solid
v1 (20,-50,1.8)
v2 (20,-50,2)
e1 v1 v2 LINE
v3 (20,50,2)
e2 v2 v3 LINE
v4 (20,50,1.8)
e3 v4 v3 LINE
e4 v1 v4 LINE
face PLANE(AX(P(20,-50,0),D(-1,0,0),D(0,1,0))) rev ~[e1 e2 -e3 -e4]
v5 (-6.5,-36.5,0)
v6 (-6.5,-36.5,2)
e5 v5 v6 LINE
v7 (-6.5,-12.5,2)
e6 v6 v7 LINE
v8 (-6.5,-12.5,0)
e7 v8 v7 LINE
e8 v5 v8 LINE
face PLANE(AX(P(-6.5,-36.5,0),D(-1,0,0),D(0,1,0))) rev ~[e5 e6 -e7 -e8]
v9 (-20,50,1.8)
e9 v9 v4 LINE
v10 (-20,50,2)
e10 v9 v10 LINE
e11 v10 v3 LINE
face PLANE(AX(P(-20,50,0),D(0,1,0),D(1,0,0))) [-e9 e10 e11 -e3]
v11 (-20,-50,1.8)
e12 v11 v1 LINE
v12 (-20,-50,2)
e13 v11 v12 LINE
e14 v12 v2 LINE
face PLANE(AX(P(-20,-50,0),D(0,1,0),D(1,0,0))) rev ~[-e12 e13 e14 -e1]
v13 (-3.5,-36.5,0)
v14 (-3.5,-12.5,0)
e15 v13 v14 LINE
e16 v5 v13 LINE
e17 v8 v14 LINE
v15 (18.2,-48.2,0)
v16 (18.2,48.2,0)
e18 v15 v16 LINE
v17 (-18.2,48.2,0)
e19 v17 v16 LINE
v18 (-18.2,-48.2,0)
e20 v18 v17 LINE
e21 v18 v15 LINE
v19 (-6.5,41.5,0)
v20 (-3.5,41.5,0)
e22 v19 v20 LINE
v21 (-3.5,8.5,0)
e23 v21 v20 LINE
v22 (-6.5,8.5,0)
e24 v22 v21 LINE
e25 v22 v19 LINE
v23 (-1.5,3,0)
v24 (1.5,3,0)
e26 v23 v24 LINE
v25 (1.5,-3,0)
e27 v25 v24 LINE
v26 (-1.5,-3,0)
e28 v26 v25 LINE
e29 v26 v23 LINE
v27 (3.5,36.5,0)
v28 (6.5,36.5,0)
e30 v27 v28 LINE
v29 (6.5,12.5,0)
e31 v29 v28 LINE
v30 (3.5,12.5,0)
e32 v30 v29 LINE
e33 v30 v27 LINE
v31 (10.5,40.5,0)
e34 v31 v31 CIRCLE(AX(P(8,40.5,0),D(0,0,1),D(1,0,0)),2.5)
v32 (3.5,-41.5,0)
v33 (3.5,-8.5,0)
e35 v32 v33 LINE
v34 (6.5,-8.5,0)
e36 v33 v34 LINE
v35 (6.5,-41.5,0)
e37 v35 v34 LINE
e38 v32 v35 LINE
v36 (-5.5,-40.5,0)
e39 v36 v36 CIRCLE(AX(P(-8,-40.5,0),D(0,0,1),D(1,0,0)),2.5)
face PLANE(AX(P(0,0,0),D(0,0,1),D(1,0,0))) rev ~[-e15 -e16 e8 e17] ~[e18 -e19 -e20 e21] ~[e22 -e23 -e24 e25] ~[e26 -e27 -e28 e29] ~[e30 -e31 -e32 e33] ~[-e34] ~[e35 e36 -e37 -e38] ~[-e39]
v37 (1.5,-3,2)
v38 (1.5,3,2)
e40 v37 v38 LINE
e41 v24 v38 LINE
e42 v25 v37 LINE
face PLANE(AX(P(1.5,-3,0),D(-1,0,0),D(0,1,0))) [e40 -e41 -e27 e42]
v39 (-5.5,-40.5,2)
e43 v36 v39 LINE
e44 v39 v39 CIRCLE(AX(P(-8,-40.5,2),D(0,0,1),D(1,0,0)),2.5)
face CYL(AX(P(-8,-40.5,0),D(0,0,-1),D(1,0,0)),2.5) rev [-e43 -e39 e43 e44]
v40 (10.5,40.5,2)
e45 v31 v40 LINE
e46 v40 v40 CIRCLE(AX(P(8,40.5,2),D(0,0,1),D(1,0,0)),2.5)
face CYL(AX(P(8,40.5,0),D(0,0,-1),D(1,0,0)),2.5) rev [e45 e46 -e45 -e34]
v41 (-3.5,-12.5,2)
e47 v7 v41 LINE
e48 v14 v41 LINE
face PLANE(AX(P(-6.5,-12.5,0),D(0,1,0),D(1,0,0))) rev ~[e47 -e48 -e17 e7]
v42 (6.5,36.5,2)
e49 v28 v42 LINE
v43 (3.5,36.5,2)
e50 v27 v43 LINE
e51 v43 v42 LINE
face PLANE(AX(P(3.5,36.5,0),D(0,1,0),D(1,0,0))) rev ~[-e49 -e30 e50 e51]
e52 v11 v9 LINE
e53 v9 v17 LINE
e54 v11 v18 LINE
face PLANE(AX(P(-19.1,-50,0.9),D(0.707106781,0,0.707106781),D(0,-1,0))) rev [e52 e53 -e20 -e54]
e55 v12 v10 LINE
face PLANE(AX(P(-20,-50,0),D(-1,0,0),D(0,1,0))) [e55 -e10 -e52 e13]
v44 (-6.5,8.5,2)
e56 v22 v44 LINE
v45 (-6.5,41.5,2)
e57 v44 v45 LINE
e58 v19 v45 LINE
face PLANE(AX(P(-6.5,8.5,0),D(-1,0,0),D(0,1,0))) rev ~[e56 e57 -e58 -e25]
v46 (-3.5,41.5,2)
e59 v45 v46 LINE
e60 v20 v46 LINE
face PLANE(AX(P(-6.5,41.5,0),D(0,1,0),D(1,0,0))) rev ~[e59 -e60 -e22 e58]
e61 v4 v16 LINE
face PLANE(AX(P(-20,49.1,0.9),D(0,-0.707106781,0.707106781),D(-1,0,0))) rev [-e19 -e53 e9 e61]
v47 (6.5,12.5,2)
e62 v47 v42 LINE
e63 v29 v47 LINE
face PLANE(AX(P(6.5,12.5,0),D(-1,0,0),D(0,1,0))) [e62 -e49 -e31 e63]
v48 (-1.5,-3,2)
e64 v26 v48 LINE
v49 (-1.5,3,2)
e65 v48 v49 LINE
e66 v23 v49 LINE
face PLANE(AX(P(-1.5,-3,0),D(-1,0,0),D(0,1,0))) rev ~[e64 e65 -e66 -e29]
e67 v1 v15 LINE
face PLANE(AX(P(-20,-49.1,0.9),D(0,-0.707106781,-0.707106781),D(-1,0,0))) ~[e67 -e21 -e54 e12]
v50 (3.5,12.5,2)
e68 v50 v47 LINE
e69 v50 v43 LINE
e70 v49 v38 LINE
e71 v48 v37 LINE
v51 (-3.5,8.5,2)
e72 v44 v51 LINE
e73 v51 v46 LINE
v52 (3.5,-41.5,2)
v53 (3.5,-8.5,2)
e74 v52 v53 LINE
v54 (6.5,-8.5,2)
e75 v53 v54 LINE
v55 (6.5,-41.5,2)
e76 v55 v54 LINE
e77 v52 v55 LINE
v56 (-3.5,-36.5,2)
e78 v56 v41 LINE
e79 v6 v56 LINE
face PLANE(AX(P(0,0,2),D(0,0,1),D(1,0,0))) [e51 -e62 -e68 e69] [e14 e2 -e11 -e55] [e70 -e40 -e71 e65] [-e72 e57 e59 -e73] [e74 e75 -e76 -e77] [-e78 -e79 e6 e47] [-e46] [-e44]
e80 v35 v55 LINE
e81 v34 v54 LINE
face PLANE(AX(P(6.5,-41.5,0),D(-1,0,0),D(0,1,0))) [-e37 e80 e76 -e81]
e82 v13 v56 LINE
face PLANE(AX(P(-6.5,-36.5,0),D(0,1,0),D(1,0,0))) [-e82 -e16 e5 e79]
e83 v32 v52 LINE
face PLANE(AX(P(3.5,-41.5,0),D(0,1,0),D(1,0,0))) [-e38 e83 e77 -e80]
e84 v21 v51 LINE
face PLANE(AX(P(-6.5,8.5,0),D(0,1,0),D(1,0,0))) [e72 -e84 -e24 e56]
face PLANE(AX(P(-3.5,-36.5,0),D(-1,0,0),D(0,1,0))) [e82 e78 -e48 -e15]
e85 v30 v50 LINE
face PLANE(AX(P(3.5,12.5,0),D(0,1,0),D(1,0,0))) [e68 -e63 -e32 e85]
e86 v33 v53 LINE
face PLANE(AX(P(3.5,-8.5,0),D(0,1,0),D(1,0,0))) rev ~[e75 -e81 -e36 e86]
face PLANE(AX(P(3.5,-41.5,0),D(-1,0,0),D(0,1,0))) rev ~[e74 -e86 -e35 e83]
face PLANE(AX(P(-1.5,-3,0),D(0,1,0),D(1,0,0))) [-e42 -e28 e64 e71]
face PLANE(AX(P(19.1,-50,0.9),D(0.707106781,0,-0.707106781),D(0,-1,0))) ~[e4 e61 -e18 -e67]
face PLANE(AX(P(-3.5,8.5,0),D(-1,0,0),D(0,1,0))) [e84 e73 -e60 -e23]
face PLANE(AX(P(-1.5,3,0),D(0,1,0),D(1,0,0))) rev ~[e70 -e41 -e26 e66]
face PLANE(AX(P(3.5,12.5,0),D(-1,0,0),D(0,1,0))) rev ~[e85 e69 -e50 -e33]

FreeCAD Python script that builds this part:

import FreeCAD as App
import Part
import Sketcher


def edges_at(feature, points):
    """Names of the edges that pass closest to the given points."""
    edges = feature.Shape.Edges
    near = lambda p: min(range(len(edges)), key=lambda i: edges[i].distToShape(Part.Vertex(*p))[0])
    return sorted({f"Edge{near(p) + 1}" for p in points})

doc = App.newDocument("Part")
body = doc.addObject("PartDesign::Body", "Body")

# Sketch on XY plane
sketch1 = body.newObject("Sketcher::SketchObject", "Sketch")
sketch1.AttachmentSupport = (doc.getObject("XY_Plane"), [""])
sketch1.MapMode = "FlatFace"
sketch1.addGeometry([
    Part.LineSegment(App.Vector(-20, 50, 0), App.Vector(-20, -50, 0)),  # 0
    Part.LineSegment(App.Vector(-20, -50, 0), App.Vector(20, -50, 0)),  # 1
    Part.LineSegment(App.Vector(20, -50, 0), App.Vector(20, 50, 0)),  # 2
    Part.LineSegment(App.Vector(20, 50, 0), App.Vector(-20, 50, 0)),  # 3
    Part.Circle(App.Vector(-8, -40.5, 0), App.Vector(0, 0, 1), 2.5),  # 4
    Part.LineSegment(App.Vector(-3.5, -36.5, 0), App.Vector(-6.5, -36.5, 0)),  # 5
    Part.LineSegment(App.Vector(-6.5, -36.5, 0), App.Vector(-6.5, -12.5, 0)),  # 6
    Part.LineSegment(App.Vector(-6.5, -12.5, 0), App.Vector(-3.5, -12.5, 0)),  # 7
    Part.LineSegment(App.Vector(-3.5, -12.5, 0), App.Vector(-3.5, -36.5, 0)),  # 8
    Part.LineSegment(App.Vector(6.5, -41.5, 0), App.Vector(3.5, -41.5, 0)),  # 9
    Part.LineSegment(App.Vector(3.5, -41.5, 0), App.Vector(3.5, -8.5, 0)),  # 10
    Part.LineSegment(App.Vector(3.5, -8.5, 0), App.Vector(6.5, -8.5, 0)),  # 11
    Part.LineSegment(App.Vector(6.5, -8.5, 0), App.Vector(6.5, -41.5, 0)),  # 12
    Part.LineSegment(App.Vector(-3.5, 8.5, 0), App.Vector(-6.5, 8.5, 0)),  # 13
    Part.LineSegment(App.Vector(-6.5, 8.5, 0), App.Vector(-6.5, 41.5, 0)),  # 14
    Part.LineSegment(App.Vector(-6.5, 41.5, 0), App.Vector(-3.5, 41.5, 0)),  # 15
    Part.LineSegment(App.Vector(-3.5, 41.5, 0), App.Vector(-3.5, 8.5, 0)),  # 16
    Part.LineSegment(App.Vector(1.5, -3, 0), App.Vector(-1.5, -3, 0)),  # 17
    Part.LineSegment(App.Vector(-1.5, -3, 0), App.Vector(-1.5, 3, 0)),  # 18
    Part.LineSegment(App.Vector(-1.5, 3, 0), App.Vector(1.5, 3, 0)),  # 19
    Part.LineSegment(App.Vector(1.5, 3, 0), App.Vector(1.5, -3, 0)),  # 20
    Part.LineSegment(App.Vector(6.5, 12.5, 0), App.Vector(3.5, 12.5, 0)),  # 21
    Part.LineSegment(App.Vector(3.5, 12.5, 0), App.Vector(3.5, 36.5, 0)),  # 22
    Part.LineSegment(App.Vector(3.5, 36.5, 0), App.Vector(6.5, 36.5, 0)),  # 23
    Part.LineSegment(App.Vector(6.5, 36.5, 0), App.Vector(6.5, 12.5, 0)),  # 24
    Part.Circle(App.Vector(8, 40.5, 0), App.Vector(0, 0, 1), 2.5),  # 25
], False)
sketch1.addConstraint([
    Sketcher.Constraint("Coincident", 0, 2, 1, 1),
    Sketcher.Constraint("Coincident", 1, 2, 2, 1),
    Sketcher.Constraint("Coincident", 2, 2, 3, 1),
    Sketcher.Constraint("Coincident", 3, 2, 0, 1),
    Sketcher.Constraint("Coincident", 5, 2, 6, 1),
    Sketcher.Constraint("Coincident", 6, 2, 7, 1),
    Sketcher.Constraint("Coincident", 7, 2, 8, 1),
    Sketcher.Constraint("Coincident", 8, 2, 5, 1),
    Sketcher.Constraint("Coincident", 9, 2, 10, 1),
    Sketcher.Constraint("Coincident", 10, 2, 11, 1),
    Sketcher.Constraint("Coincident", 11, 2, 12, 1),
    Sketcher.Constraint("Coincident", 12, 2, 9, 1),
    Sketcher.Constraint("Coincident", 13, 2, 14, 1),
    Sketcher.Constraint("Coincident", 14, 2, 15, 1),
    Sketcher.Constraint("Coincident", 15, 2, 16, 1),
    Sketcher.Constraint("Coincident", 16, 2, 13, 1),
    Sketcher.Constraint("Coincident", 17, 2, 18, 1),
    Sketcher.Constraint("Coincident", 18, 2, 19, 1),
    Sketcher.Constraint("Coincident", 19, 2, 20, 1),
    Sketcher.Constraint("Coincident", 20, 2, 17, 1),
    Sketcher.Constraint("Coincident", 21, 2, 22, 1),
    Sketcher.Constraint("Coincident", 22, 2, 23, 1),
    Sketcher.Constraint("Coincident", 23, 2, 24, 1),
    Sketcher.Constraint("Coincident", 24, 2, 21, 1),
    Sketcher.Constraint("Vertical", 0),
    Sketcher.Constraint("Horizontal", 1),
    Sketcher.Constraint("Vertical", 2),
    Sketcher.Constraint("Horizontal", 3),
    Sketcher.Constraint("Horizontal", 5),
    Sketcher.Constraint("Vertical", 6),
    Sketcher.Constraint("Horizontal", 7),
    Sketcher.Constraint("Vertical", 8),
    Sketcher.Constraint("Horizontal", 9),
    Sketcher.Constraint("Vertical", 10),
    Sketcher.Constraint("Horizontal", 11),
    Sketcher.Constraint("Vertical", 12),
    Sketcher.Constraint("Horizontal", 13),
    Sketcher.Constraint("Vertical", 14),
    Sketcher.Constraint("Horizontal", 15),
    Sketcher.Constraint("Vertical", 16),
    Sketcher.Constraint("Horizontal", 17),
    Sketcher.Constraint("Vertical", 18),
    Sketcher.Constraint("Horizontal", 19),
    Sketcher.Constraint("Vertical", 20),
    Sketcher.Constraint("Horizontal", 21),
    Sketcher.Constraint("Vertical", 22),
    Sketcher.Constraint("Horizontal", 23),
    Sketcher.Constraint("Vertical", 24),
    Sketcher.Constraint("Equal", 4, 25),
    Sketcher.Constraint("Symmetric", 4, 3, 25, 3, -1, 1),
    Sketcher.Constraint("Symmetric", 0, 2, 2, 2, -1, 1),
    Sketcher.Constraint("Symmetric", 11, 2, 13, 2, -1, 1),
    Sketcher.Constraint("Symmetric", 9, 2, 15, 2, -1, 1),
    Sketcher.Constraint("Symmetric", 17, 2, 19, 2, -1, 1),
    Sketcher.Constraint("Symmetric", 7, 2, 21, 2, -1, 1),
    Sketcher.Constraint("Symmetric", 5, 2, 23, 2, -1, 1),
    Sketcher.Constraint("Vertical", 6, 2, 13, 2),
    Sketcher.Constraint("Vertical", 8, 2, 15, 2),
    Sketcher.Constraint("Equal", 15, 17),
    Sketcher.Constraint("Diameter", 4, 5.0),
    Sketcher.Constraint("DistanceX", 1, 1, 1, 2, 40.0),
    Sketcher.Constraint("DistanceX", 5, 2, 5, 1, 3.0),
    Sketcher.Constraint("DistanceY", 0, 2, 0, 1, 100.0),
    Sketcher.Constraint("DistanceY", 6, 1, 6, 2, 24.0),
    Sketcher.Constraint("DistanceY", 10, 1, 10, 2, 33.0),
    Sketcher.Constraint("DistanceY", 18, 1, 18, 2, 6.0),
    Sketcher.Constraint("DistanceX", 4, 3, -1, 1, 8.0),
    Sketcher.Constraint("DistanceY", 4, 3, 25, 3, 81.0),
    Sketcher.Constraint("DistanceY", 4, 3, 5, 2, 4.0),
    Sketcher.Constraint("DistanceX", 8, 2, 9, 2, 7.0),
    Sketcher.Constraint("DistanceY", 9, 2, 8, 2, 5.0),
])
pad1 = body.newObject("PartDesign::Pad", "Pad")
pad1.Profile = sketch1
pad1.Length = 2
doc.recompute()

chamfer = body.newObject("PartDesign::Chamfer", "Chamfer")
chamfer.Base = (pad1, edges_at(pad1, [
    (0, -50, 0),
    (20, 0, 0),
    (0, 50, 0),
    (-20, 0, 0),
]))
chamfer.Size = 1.8

doc.recompute()
